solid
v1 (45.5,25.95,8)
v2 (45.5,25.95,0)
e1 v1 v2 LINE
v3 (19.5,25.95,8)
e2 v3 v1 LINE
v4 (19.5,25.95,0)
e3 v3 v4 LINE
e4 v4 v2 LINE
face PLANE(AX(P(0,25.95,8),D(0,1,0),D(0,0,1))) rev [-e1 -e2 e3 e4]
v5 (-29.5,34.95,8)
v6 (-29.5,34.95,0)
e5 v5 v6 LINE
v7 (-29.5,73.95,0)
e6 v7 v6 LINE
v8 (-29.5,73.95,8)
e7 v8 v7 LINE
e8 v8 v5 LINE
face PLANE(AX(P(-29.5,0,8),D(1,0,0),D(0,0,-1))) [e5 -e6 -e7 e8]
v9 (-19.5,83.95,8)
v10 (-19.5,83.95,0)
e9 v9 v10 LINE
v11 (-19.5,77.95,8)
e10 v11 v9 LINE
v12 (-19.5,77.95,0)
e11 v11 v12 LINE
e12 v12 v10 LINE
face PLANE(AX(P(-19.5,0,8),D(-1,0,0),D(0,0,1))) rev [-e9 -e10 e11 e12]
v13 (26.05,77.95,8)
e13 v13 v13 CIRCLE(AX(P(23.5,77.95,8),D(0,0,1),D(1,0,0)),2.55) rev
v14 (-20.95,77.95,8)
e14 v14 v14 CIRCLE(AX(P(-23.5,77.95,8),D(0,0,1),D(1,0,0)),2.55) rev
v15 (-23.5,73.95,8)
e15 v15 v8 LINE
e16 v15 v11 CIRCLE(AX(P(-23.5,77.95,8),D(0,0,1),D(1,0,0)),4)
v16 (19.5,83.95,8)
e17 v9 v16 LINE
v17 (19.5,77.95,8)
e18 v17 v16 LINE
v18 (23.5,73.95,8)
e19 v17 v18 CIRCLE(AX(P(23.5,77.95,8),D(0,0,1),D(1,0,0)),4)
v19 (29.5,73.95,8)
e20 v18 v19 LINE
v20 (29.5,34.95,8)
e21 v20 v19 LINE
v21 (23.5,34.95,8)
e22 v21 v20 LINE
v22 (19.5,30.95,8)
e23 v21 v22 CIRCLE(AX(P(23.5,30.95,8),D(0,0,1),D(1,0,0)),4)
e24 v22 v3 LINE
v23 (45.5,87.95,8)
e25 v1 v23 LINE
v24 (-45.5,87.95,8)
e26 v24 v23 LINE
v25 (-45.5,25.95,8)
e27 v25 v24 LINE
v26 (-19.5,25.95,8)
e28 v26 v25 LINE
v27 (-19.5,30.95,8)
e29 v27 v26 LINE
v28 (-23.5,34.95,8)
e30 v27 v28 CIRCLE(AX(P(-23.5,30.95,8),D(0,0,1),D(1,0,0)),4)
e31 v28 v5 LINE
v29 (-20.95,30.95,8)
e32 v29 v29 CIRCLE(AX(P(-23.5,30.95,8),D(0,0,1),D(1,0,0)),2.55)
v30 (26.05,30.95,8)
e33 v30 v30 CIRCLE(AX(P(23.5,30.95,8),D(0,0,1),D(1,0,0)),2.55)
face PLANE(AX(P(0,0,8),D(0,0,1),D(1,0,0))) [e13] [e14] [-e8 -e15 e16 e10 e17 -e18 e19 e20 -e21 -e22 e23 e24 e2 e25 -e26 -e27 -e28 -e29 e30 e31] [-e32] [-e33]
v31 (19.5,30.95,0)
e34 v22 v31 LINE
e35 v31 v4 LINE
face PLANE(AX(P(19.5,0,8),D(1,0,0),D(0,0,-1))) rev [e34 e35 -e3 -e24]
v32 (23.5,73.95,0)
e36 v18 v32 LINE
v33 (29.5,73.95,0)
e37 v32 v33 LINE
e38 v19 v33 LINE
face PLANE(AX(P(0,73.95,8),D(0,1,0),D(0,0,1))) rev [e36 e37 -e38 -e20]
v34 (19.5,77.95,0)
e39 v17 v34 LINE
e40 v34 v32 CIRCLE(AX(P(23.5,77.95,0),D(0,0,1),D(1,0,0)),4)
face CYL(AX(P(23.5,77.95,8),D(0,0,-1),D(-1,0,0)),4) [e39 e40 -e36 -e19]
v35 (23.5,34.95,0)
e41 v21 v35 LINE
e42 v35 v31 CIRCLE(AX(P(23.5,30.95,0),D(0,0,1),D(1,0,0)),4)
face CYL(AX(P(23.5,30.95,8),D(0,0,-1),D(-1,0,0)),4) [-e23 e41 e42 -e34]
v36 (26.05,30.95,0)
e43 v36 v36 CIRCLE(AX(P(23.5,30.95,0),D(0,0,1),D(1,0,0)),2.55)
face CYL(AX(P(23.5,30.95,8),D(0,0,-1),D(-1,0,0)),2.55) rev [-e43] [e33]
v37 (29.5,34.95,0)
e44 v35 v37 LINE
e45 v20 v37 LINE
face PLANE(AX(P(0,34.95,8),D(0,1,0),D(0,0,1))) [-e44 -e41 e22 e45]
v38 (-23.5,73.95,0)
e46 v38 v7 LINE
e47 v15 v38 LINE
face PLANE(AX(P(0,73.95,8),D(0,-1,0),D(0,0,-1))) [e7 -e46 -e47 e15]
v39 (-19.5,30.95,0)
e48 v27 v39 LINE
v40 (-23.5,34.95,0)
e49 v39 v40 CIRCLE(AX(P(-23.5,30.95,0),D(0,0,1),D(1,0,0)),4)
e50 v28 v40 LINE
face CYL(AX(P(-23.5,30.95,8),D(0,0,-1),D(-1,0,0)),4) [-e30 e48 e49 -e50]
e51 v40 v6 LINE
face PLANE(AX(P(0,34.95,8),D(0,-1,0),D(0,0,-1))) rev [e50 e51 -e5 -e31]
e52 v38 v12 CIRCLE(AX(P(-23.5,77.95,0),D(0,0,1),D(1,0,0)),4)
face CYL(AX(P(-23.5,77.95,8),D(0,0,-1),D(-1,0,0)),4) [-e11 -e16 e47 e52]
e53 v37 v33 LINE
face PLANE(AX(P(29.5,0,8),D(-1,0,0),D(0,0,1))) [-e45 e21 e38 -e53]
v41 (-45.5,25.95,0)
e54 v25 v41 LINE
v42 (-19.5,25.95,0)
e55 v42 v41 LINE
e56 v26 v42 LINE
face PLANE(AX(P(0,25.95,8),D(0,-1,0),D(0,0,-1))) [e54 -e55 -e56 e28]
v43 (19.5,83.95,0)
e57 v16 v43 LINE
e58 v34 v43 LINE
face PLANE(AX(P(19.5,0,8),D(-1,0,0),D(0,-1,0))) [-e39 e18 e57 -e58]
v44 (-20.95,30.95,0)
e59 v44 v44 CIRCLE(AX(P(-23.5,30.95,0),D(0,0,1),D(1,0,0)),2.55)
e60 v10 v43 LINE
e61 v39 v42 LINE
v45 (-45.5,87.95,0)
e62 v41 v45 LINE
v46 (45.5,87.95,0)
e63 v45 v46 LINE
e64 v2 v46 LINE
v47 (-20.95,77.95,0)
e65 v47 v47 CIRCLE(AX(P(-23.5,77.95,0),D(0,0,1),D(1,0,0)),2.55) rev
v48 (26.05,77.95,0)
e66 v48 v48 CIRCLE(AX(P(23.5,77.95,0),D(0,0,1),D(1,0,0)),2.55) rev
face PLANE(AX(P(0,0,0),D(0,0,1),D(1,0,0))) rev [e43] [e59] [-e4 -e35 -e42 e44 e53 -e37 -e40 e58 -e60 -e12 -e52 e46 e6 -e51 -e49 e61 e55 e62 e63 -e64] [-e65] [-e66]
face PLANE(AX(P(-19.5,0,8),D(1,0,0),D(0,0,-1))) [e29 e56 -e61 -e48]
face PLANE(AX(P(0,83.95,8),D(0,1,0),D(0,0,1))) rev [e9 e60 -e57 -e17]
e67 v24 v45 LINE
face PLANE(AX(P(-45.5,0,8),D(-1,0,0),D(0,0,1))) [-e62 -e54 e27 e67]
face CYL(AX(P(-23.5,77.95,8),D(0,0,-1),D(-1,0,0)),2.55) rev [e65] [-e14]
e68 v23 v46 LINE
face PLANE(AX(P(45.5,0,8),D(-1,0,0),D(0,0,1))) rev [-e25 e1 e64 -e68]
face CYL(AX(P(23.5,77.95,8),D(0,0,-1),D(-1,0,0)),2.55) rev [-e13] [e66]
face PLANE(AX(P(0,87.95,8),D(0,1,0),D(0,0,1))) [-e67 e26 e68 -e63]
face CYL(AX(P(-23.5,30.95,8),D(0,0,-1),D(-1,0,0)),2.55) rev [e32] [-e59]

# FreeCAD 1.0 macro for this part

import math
import FreeCAD as App
import Part
import Sketcher
from FreeCAD import Vector

doc = App.newDocument("Part")
body = doc.addObject("PartDesign::Body", "Body")

# Sketch on XY plane
sketch1 = body.newObject("Sketcher::SketchObject", "Sketch")
sketch1.AttachmentSupport = (doc.getObject("XY_Plane"), [""])
sketch1.MapMode = "FlatFace"
sketch1.addGeometry([
    Part.LineSegment(Vector(-45.5, 25.9, 0), Vector(-19.5, 25.9, 0)),  # 0
    Part.LineSegment(Vector(-19.5, 25.9, 0), Vector(-19.5, 30.9, 0)),  # 1
    Part.ArcOfCircle(Part.Circle(Vector(-23.5, 31, 0), Vector(0, 0, 1), 4), math.radians(0), math.radians(90)),  # 2
    Part.LineSegment(Vector(-23.5, 35, 0), Vector(-29.5, 35, 0)),  # 3
    Part.LineSegment(Vector(-29.5, 35, 0), Vector(-29.5, 74, 0)),  # 4
    Part.LineSegment(Vector(-29.5, 74, 0), Vector(-23.5, 74, 0)),  # 5
    Part.ArcOfCircle(Part.Circle(Vector(-23.5, 77.9, 0), Vector(0, 0, 1), 4), math.radians(-90), math.radians(0)),  # 6
    Part.LineSegment(Vector(-19.5, 78, 0), Vector(-19.5, 84, 0)),  # 7
    Part.LineSegment(Vector(-19.5, 84, 0), Vector(19.5, 84, 0)),  # 8
    Part.LineSegment(Vector(19.5, 84, 0), Vector(19.5, 78, 0)),  # 9
    Part.ArcOfCircle(Part.Circle(Vector(23.5, 77.9, 0), Vector(0, 0, 1), 4), math.radians(180), math.radians(270)),  # 10
    Part.LineSegment(Vector(23.5, 74, 0), Vector(29.5, 74, 0)),  # 11
    Part.LineSegment(Vector(29.5, 74, 0), Vector(29.5, 35, 0)),  # 12
    Part.LineSegment(Vector(29.5, 35, 0), Vector(23.5, 35, 0)),  # 13
    Part.ArcOfCircle(Part.Circle(Vector(23.5, 31, 0), Vector(0, 0, 1), 4), math.radians(90), math.radians(180)),  # 14
    Part.LineSegment(Vector(19.5, 30.9, 0), Vector(19.5, 25.9, 0)),  # 15
    Part.LineSegment(Vector(19.5, 25.9, 0), Vector(45.5, 25.9, 0)),  # 16
    Part.LineSegment(Vector(45.5, 25.9, 0), Vector(45.5, 88, 0)),  # 17
    Part.LineSegment(Vector(45.5, 88, 0), Vector(-45.5, 88, 0)),  # 18
    Part.LineSegment(Vector(-45.5, 88, 0), Vector(-45.5, 25.9, 0)),  # 19
    Part.Circle(Vector(-23.5, 30.9, 0), Vector(0, 0, 1), 2.5),  # 20
    Part.Circle(Vector(23.5, 30.9, 0), Vector(0, 0, 1), 2.5),  # 21
    Part.Circle(Vector(-23.5, 78, 0), Vector(0, 0, 1), 2.5),  # 22
    Part.Circle(Vector(23.5, 78, 0), Vector(0, 0, 1), 2.5),  # 23
], False)
sketch1.addConstraint([
    Sketcher.Constraint("Coincident", 0, 2, 1, 1),
    Sketcher.Constraint("Tangent", 1, 2, 2, 1),
    Sketcher.Constraint("Tangent", 2, 2, 3, 1),
    Sketcher.Constraint("Coincident", 3, 2, 4, 1),
    Sketcher.Constraint("Coincident", 4, 2, 5, 1),
    Sketcher.Constraint("Tangent", 5, 2, 6, 1),
    Sketcher.Constraint("Tangent", 6, 2, 7, 1),
    Sketcher.Constraint("Coincident", 7, 2, 8, 1),
    Sketcher.Constraint("Coincident", 8, 2, 9, 1),
    Sketcher.Constraint("Tangent", 9, 2, 10, 1),
    Sketcher.Constraint("Tangent", 10, 2, 11, 1),
    Sketcher.Constraint("Coincident", 11, 2, 12, 1),
    Sketcher.Constraint("Coincident", 12, 2, 13, 1),
    Sketcher.Constraint("Tangent", 13, 2, 14, 1),
    Sketcher.Constraint("Tangent", 14, 2, 15, 1),
    Sketcher.Constraint("Coincident", 15, 2, 16, 1),
    Sketcher.Constraint("Coincident", 16, 2, 17, 1),
    Sketcher.Constraint("Coincident", 17, 2, 18, 1),
    Sketcher.Constraint("Coincident", 18, 2, 19, 1),
    Sketcher.Constraint("Coincident", 19, 2, 0, 1),
    Sketcher.Constraint("Horizontal", 0),
    Sketcher.Constraint("Vertical", 1),
    Sketcher.Constraint("Horizontal", 3),
    Sketcher.Constraint("Vertical", 4),
    Sketcher.Constraint("Horizontal", 5),
    Sketcher.Constraint("Vertical", 7),
    Sketcher.Constraint("Horizontal", 8),
    Sketcher.Constraint("Vertical", 9),
    Sketcher.Constraint("Horizontal", 11),
    Sketcher.Constraint("Vertical", 12),
    Sketcher.Constraint("Horizontal", 13),
    Sketcher.Constraint("Vertical", 15),
    Sketcher.Constraint("Horizontal", 16),
    Sketcher.Constraint("Vertical", 17),
    Sketcher.Constraint("Horizontal", 18),
    Sketcher.Constraint("Vertical", 19),
    Sketcher.Constraint("Coincident", 20, 3, 2, 3),
    Sketcher.Constraint("Coincident", 21, 3, 14, 3),
    Sketcher.Constraint("Coincident", 22, 3, 6, 3),
    Sketcher.Constraint("Coincident", 23, 3, 10, 3),
    Sketcher.Constraint("Equal", 2, 6),
    Sketcher.Constraint("Equal", 6, 10),
    Sketcher.Constraint("Equal", 10, 14),
    Sketcher.Constraint("Equal", 20, 21),
    Sketcher.Constraint("Equal", 21, 22),
    Sketcher.Constraint("Equal", 22, 23),
    Sketcher.Constraint("Symmetric", 6, 3, 10, 3, -2),
    Sketcher.Constraint("Symmetric", 2, 3, 14, 3, -2),
    Sketcher.Constraint("Symmetric", 16, 2, 19, 2, -2),
    Sketcher.Constraint("Vertical", 2, 3, 6, 3),
    Sketcher.Constraint("Equal", 5, 11),
    Sketcher.Constraint("Equal", 8, 4),
    Sketcher.Constraint("Equal", 13, 7),
    Sketcher.Constraint("Radius", 2, 4.0),
    Sketcher.Constraint("Diameter", 20, 5.1),
    Sketcher.Constraint("DistanceX", 0, 1, 0, 2, 26.0),
    Sketcher.Constraint("DistanceX", 3, 2, 3, 1, 6.0),
    Sketcher.Constraint("DistanceX", 8, 1, 8, 2, 39.0),
    Sketcher.Constraint("DistanceY", 1, 1, 1, 2, 5.0),
    Sketcher.Constraint("DistanceY", 17, 1, 17, 2, 62.0),
    Sketcher.Constraint("DistanceY", -1, 1, 2, 3, 30.95),
])
pad1 = body.newObject("PartDesign::Pad", "Pad")
pad1.Profile = sketch1
pad1.Length = 8

doc.recompute()
